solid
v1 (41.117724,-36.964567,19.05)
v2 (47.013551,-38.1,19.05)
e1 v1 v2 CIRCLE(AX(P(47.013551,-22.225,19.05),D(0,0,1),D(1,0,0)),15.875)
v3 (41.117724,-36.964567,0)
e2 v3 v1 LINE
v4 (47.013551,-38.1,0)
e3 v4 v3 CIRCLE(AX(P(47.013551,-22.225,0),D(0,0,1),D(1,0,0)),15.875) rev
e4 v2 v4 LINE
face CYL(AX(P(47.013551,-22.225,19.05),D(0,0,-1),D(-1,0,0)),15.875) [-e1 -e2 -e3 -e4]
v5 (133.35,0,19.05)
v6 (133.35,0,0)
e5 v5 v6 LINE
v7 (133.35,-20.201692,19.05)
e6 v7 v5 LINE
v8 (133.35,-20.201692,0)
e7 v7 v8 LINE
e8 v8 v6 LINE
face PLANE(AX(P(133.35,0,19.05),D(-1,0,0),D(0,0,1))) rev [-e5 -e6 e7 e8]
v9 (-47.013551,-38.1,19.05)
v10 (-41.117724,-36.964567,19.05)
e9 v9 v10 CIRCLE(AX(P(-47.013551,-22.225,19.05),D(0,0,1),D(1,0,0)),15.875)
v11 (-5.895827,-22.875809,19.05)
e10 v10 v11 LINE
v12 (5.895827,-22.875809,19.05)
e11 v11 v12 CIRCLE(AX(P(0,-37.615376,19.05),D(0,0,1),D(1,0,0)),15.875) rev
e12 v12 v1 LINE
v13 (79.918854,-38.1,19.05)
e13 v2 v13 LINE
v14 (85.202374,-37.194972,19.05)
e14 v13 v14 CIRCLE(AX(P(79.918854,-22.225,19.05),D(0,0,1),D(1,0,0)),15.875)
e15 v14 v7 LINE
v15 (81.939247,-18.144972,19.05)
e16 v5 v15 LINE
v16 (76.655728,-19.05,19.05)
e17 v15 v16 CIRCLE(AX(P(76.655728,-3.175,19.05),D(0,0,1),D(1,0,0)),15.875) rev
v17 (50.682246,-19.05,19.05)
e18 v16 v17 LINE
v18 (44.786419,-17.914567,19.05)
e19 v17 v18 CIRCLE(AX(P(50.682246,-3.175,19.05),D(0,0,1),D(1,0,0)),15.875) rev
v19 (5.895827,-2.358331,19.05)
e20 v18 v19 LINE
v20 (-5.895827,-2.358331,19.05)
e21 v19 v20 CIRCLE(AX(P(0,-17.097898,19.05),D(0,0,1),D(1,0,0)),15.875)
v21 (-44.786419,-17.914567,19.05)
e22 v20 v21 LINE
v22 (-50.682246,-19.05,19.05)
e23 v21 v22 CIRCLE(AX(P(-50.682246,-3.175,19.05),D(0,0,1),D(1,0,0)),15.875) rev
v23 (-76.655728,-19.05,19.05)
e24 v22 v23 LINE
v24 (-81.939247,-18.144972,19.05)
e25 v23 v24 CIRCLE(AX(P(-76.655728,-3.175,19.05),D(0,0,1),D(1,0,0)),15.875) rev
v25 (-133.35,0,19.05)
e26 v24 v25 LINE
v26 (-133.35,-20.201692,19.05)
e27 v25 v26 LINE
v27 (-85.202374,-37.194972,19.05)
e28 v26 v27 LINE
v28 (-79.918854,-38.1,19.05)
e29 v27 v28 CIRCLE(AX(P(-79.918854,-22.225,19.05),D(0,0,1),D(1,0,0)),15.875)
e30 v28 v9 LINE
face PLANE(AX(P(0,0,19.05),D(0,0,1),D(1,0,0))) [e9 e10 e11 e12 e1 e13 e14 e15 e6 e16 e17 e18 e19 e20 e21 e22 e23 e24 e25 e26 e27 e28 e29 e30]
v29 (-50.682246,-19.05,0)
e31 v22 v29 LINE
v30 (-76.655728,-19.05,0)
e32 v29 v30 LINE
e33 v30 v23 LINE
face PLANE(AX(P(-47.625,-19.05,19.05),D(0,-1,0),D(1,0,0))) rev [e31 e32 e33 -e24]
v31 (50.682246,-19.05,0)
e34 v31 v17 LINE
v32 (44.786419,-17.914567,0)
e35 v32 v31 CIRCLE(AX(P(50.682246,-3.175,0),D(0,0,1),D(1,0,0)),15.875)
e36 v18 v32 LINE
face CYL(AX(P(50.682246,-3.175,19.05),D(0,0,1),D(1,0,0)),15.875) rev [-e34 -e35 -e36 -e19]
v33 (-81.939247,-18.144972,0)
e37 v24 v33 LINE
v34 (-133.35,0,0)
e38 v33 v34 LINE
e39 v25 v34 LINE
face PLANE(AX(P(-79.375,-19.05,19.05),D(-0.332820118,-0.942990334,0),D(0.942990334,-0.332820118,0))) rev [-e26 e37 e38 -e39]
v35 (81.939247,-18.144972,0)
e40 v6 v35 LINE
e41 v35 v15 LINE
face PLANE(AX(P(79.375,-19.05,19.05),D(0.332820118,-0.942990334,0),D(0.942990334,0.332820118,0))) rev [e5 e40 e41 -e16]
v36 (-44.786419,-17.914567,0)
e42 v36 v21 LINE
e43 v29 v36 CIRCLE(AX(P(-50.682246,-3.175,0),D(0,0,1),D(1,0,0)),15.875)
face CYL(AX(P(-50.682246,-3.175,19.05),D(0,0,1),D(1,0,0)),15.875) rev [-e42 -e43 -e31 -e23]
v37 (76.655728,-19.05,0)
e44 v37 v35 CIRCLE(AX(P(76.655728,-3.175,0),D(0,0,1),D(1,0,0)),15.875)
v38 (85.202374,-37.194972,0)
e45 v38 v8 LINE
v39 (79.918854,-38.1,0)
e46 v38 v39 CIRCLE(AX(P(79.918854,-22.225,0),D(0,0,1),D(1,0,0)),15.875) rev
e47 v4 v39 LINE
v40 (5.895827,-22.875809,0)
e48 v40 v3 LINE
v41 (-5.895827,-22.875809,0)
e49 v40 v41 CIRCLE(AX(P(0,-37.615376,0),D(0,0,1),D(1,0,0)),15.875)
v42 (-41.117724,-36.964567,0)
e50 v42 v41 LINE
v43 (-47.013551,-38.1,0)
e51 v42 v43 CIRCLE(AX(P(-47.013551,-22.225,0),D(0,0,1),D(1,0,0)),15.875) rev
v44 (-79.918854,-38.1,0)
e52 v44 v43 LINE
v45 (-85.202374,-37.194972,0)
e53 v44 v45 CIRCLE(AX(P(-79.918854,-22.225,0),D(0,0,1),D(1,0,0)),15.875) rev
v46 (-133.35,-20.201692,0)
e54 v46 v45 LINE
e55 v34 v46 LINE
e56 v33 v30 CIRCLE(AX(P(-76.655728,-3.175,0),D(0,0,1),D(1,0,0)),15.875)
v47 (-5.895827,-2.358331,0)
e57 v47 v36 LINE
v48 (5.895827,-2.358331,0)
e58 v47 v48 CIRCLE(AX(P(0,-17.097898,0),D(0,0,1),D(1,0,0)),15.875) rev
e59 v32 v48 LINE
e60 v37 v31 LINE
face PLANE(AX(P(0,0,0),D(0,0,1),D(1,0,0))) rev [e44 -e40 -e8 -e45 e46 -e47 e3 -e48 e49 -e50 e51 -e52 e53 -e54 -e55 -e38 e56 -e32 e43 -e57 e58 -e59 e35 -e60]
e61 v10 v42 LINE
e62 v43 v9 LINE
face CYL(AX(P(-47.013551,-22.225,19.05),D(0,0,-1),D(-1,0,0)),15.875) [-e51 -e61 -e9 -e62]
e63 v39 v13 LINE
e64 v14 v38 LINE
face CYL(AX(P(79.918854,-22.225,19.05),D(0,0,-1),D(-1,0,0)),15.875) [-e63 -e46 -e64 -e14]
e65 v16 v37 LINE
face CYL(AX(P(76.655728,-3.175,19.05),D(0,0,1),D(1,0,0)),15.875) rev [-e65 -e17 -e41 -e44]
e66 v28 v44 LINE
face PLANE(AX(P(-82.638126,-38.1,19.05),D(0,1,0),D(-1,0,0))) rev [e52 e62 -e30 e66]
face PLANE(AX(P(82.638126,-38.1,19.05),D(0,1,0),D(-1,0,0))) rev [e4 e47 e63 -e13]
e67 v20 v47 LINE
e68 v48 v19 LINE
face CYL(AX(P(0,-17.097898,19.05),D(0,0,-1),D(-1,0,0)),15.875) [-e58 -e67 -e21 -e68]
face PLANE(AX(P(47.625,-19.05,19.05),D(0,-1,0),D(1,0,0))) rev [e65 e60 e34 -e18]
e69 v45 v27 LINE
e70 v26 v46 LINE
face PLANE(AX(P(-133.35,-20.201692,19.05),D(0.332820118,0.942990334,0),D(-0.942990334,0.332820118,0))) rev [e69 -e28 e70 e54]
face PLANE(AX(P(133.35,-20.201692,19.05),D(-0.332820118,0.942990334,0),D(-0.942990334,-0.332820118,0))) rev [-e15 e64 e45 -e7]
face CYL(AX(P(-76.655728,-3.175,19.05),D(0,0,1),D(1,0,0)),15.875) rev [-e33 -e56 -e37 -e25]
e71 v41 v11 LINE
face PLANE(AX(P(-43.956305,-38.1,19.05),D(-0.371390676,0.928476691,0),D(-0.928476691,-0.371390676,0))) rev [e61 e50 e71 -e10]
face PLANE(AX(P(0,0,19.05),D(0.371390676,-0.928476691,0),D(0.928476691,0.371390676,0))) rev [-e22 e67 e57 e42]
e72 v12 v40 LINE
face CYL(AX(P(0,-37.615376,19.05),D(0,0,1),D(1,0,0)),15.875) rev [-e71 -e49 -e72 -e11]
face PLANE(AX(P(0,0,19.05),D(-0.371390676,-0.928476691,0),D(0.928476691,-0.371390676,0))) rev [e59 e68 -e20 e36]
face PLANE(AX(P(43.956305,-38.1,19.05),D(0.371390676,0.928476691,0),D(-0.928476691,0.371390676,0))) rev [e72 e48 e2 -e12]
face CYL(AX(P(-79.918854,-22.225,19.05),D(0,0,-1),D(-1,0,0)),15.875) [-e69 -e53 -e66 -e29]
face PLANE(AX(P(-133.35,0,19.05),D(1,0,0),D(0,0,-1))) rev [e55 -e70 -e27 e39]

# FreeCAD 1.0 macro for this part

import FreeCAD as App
import Part
import Sketcher
Q = App.Units.Quantity


def edges_at(feature, points):
    """Names of the edges that pass closest to the given points."""
    edges = feature.Shape.Edges
    near = lambda p: min(range(len(edges)), key=lambda i: edges[i].distToShape(Part.Vertex(*p))[0])
    return sorted({f"Edge{near(p) + 1}" for p in points})


def add_polygon(sketch, points):
    """Adds a closed chain of lines whose ends are joined by coincident constraints."""
    first, n = sketch.GeometryCount, len(points)
    for a, b in zip(points, points[1:] + points[:1]):
        sketch.addGeometry(Part.LineSegment(App.Vector(*a, 0), App.Vector(*b, 0)), False)
    for i in range(n):
        sketch.addConstraint(Sketcher.Constraint("Coincident", first + i, 2, first + (i + 1) % n, 1))

doc = App.newDocument("Part")
body = doc.addObject("PartDesign::Body", "Body")

sketch1 = doc.addObject("Sketcher::SketchObject", "Sketch")
body.addObject(sketch1)
sketch1.AttachmentSupport = (doc.XY_Plane, [""])
sketch1.MapMode = "FlatFace"
add_polygon(sketch1, [(48, -19), (0, 0), (-48, -19), (-79, -19), (-133, 0), (-133, -20), (-83, -38), (-44, -38), (0, -21), (44, -38), (83, -38), (133, -20), (133, 0), (79, -19)])
sketch1.addConstraint([
    Sketcher.Constraint("Horizontal", 2),
    Sketcher.Constraint("Vertical", 4),
    Sketcher.Constraint("Horizontal", 6),
    Sketcher.Constraint("Horizontal", 9),
    Sketcher.Constraint("Vertical", 11),
    Sketcher.Constraint("Horizontal", 13),
    Sketcher.Constraint("Coincident", 0, 2, -1, 1),
    Sketcher.Constraint("Symmetric", 3, 2, 11, 2, -1, 1),
    Sketcher.Constraint("Symmetric", 6, 2, 8, 2, -2),
    Sketcher.Constraint("Symmetric", 2, 2, 12, 2, -2),
    Sketcher.Constraint("PointOnObject", 3, 2, -1),
    Sketcher.Constraint("PointOnObject", 7, 2, -2),
    Sketcher.Constraint("Parallel", 3, 5),
    Sketcher.Constraint("Parallel", 1, 7),
    Sketcher.Constraint("Parallel", 0, 8),
    Sketcher.Constraint("Parallel", 10, 12),
    Sketcher.Constraint("Horizontal", 4, 2, 10, 2),
    Sketcher.Constraint("DistanceX", 2, 2, 2, 1, Q("1.25 in")),
    Sketcher.Constraint("DistanceY", 5, 2, -1, 1, Q("1.5 in")),
    Sketcher.Constraint("DistanceY", 1, 2, -1, 1, Q("0.75 in")),
    Sketcher.Constraint("DistanceX", 3, 2, -1, 1, Q("5.25 in")),
    Sketcher.Constraint("DistanceX", 1, 2, -1, 1, Q("1.875 in")),
    Sketcher.Constraint("DistanceX", 6, 1, 6, 2, Q("38.681821 mm")),
    Sketcher.Constraint("DistanceY", 4, 2, 4, 1, Q("20.201692 mm")),
])
pad1 = doc.addObject("PartDesign::Pad", "Pad")
body.addObject(pad1)
pad1.Profile = sketch1
pad1.Length = Q("0.75 in")
doc.recompute()

fillet = doc.addObject("PartDesign::Fillet", "Fillet")
body.addObject(fillet)
fillet.Base = (pad1, edges_at(pad1, [
    (0, 0, 9.525),
    (47.625, -19.05, 9.525),
    (79.375, -19.05, 9.525),
    (82.638, -38.1, 9.525),
    (43.956, -38.1, 9.525),
    (0, -20.517, 9.525),
    (-43.956, -38.1, 9.525),
    (-82.638, -38.1, 9.525),
    (-79.375, -19.05, 9.525),
    (-47.625, -19.05, 9.525),
]))
fillet.Radius = Q("0.625 in")

doc.recompute()
